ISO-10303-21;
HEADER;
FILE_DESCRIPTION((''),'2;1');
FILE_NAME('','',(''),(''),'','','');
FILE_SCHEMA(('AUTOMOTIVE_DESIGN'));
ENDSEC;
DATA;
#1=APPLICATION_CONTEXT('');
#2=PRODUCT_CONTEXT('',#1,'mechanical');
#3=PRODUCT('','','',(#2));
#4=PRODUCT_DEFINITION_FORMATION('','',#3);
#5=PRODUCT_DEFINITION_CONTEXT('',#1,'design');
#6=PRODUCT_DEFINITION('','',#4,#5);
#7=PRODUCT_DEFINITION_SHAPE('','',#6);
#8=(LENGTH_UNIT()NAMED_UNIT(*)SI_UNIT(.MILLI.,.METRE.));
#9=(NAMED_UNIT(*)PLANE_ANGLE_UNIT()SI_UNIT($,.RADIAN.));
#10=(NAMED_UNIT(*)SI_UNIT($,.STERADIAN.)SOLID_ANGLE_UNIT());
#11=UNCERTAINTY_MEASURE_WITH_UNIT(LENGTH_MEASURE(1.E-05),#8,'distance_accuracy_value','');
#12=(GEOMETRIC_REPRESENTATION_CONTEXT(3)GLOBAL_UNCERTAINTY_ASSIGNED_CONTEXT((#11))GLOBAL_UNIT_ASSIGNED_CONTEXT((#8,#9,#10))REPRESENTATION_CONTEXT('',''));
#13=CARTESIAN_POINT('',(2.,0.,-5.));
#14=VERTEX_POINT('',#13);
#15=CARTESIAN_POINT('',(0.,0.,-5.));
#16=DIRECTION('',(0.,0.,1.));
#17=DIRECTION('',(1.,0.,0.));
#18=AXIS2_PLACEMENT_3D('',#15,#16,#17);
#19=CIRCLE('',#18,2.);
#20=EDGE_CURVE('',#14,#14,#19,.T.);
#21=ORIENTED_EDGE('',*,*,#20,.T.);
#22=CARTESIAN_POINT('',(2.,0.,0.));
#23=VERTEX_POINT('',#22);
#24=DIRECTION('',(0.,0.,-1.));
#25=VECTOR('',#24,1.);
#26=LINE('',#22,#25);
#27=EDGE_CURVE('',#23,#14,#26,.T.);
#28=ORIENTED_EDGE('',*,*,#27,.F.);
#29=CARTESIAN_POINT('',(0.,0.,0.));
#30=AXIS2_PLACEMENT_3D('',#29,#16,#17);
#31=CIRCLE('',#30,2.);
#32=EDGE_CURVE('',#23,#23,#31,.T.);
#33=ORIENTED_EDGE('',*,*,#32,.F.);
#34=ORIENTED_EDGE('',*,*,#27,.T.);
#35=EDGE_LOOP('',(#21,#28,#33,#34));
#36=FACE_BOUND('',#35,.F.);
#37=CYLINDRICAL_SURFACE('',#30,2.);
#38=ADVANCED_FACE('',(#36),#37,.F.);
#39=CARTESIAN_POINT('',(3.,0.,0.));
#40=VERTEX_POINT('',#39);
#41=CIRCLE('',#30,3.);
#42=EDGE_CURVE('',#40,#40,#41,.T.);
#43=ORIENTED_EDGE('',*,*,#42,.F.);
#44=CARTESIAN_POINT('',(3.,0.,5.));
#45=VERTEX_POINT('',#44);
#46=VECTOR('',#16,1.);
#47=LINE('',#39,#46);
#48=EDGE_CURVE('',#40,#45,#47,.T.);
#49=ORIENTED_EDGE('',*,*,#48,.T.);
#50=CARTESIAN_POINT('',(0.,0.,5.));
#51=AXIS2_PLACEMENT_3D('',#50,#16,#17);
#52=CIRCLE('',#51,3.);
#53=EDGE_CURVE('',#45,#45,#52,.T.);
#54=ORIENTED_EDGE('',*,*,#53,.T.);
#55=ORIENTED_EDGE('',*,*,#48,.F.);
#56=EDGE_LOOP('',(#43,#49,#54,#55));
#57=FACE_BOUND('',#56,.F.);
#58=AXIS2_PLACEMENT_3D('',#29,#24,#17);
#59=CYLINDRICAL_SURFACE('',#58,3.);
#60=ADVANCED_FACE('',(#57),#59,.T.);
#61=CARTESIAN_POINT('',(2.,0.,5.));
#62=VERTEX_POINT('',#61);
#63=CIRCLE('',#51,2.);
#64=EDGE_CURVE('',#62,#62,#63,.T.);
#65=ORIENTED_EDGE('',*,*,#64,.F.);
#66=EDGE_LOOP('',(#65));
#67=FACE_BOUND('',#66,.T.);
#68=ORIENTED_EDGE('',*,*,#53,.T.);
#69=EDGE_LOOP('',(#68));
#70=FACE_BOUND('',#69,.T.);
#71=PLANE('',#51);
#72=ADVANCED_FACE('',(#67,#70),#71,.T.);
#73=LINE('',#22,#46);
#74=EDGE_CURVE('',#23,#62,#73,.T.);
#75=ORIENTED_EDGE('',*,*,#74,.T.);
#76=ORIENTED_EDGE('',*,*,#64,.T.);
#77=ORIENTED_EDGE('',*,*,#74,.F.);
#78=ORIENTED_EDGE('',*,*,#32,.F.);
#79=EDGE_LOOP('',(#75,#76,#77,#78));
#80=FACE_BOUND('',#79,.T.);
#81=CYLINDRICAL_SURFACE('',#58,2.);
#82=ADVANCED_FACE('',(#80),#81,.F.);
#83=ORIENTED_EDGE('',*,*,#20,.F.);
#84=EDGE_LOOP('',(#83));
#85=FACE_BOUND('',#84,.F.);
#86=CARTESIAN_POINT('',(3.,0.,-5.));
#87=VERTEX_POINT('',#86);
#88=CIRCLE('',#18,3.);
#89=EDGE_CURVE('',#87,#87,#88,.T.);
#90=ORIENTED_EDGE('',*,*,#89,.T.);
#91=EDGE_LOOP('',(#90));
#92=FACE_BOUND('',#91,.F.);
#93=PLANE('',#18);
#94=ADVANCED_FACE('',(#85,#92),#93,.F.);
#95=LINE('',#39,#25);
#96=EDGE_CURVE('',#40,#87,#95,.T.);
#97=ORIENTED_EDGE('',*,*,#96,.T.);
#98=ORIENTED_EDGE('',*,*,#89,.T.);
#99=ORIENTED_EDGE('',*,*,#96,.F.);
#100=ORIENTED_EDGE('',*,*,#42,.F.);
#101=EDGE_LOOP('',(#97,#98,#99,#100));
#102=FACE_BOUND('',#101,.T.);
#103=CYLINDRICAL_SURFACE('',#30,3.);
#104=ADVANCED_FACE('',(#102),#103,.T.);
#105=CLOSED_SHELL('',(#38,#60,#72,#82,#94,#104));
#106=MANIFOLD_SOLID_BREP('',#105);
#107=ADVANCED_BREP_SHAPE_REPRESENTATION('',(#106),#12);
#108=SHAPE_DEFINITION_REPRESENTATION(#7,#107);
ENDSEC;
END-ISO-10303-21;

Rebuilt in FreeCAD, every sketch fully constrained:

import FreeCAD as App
import Part
import Sketcher

V = App.Vector

doc = App.newDocument("Part")
body = doc.addObject("PartDesign::Body", "Body")

# Sketch on XY plane
sketch1 = body.newObject("Sketcher::SketchObject", "Sketch")
sketch1.AttachmentSupport = (doc.getObject("XY_Plane"), [""])
sketch1.MapMode = "FlatFace"
sketch1.addGeometry([
    Part.Circle(V(0, 0, 0), V(0, 0, 1), 3),
    Part.Circle(V(0, 0, 0), V(0, 0, 1), 2),
], False)
sketch1.addConstraint([
    Sketcher.Constraint("Coincident", 0, 3, -1, 1),
    Sketcher.Constraint("Coincident", 1, 3, -1, 1),
    Sketcher.Constraint("Diameter", 0, 6.0),
    Sketcher.Constraint("Diameter", 1, 4.0),
])
pad1 = body.newObject("PartDesign::Pad", "Pad")
pad1.Profile = sketch1
pad1.Length = 10
pad1.Midplane = True

doc.recompute()
